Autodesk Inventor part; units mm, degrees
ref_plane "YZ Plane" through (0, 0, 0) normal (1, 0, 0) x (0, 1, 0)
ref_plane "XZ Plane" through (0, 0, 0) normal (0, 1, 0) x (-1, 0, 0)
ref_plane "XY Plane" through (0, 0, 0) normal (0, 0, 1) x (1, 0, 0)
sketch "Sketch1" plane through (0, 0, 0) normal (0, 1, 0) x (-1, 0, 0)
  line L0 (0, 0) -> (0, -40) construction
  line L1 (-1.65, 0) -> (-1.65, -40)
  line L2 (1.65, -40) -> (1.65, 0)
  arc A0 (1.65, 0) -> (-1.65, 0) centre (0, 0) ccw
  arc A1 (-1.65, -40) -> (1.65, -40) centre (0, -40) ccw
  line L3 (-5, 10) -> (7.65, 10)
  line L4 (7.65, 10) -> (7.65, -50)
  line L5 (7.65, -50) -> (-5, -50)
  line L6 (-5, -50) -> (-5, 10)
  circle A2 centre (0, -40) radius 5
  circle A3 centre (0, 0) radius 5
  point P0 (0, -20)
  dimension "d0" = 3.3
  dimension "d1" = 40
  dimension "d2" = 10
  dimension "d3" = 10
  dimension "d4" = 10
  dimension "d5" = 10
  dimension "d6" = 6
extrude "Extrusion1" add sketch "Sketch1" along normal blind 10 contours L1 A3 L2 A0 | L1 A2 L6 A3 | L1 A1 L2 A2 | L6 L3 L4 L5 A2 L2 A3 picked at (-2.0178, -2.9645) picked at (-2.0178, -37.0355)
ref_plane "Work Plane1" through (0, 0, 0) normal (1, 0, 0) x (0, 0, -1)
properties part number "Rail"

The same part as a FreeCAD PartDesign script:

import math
import FreeCAD as App
import Part
import Sketcher

V = App.Vector

doc = App.newDocument("Part")
body = doc.addObject("PartDesign::Body", "Body")

# Sketch on XZ plane
sketch1 = body.newObject("Sketcher::SketchObject", "Sketch")
sketch1.AttachmentSupport = (doc.getObject("XZ_Plane"), [""])
sketch1.MapMode = "FlatFace"
sketch1.addGeometry(Part.LineSegment(V(5, -50, 0), V(-7.65, -50, 0)), False)
sketch1.addGeometry(Part.LineSegment(V(-7.65, -50, 0), V(-7.65, 10, 0)), False)
sketch1.addGeometry(Part.LineSegment(V(-7.65, 10, 0), V(5, 10, 0)), False)
sketch1.addGeometry(Part.LineSegment(V(5, 10, 0), V(5, -50, 0)), False)
sketch1.addGeometry(Part.ArcOfCircle(Part.Circle(V(0, 0, 0), V(0, 0, 1), 1.65), math.radians(0), math.radians(180)), False)
sketch1.addGeometry(Part.LineSegment(V(-1.65, 0, 0), V(-1.65, -40, 0)), False)
sketch1.addGeometry(Part.ArcOfCircle(Part.Circle(V(0, -40, 0), V(0, 0, 1), 1.65), math.radians(180), math.radians(360)), False)
sketch1.addGeometry(Part.LineSegment(V(1.65, -40, 0), V(1.65, 0, 0)), False)
sketch1.addConstraint(Sketcher.Constraint("Coincident", 0, 2, 1, 1))
sketch1.addConstraint(Sketcher.Constraint("Coincident", 1, 2, 2, 1))
sketch1.addConstraint(Sketcher.Constraint("Coincident", 2, 2, 3, 1))
sketch1.addConstraint(Sketcher.Constraint("Coincident", 3, 2, 0, 1))
sketch1.addConstraint(Sketcher.Constraint("Tangent", 4, 2, 5, 1))
sketch1.addConstraint(Sketcher.Constraint("Tangent", 5, 2, 6, 1))
sketch1.addConstraint(Sketcher.Constraint("Tangent", 6, 2, 7, 1))
sketch1.addConstraint(Sketcher.Constraint("Tangent", 7, 2, 4, 1))
sketch1.addConstraint(Sketcher.Constraint("Horizontal", 0))
sketch1.addConstraint(Sketcher.Constraint("Vertical", 1))
sketch1.addConstraint(Sketcher.Constraint("Horizontal", 2))
sketch1.addConstraint(Sketcher.Constraint("Vertical", 3))
sketch1.addConstraint(Sketcher.Constraint("Vertical", 5))
sketch1.addConstraint(Sketcher.Constraint("Vertical", 7))
sketch1.addConstraint(Sketcher.Constraint("Coincident", 4, 3, -1, 1))
sketch1.addConstraint(Sketcher.Constraint("DistanceY", 5, 2, 5, 1, 40.0))
sketch1.addConstraint(Sketcher.Constraint("Radius", 4, 1.65))
sketch1.addConstraint(Sketcher.Constraint("DistanceY", -1, 1, 1, 2, 10.0))
sketch1.addConstraint(Sketcher.Constraint("DistanceY", 0, 2, 6, 3, 10.0))
sketch1.addConstraint(Sketcher.Constraint("DistanceX", 1, 2, 4, 2, 6.0))
sketch1.addConstraint(Sketcher.Constraint("DistanceX", -1, 1, 2, 2, 5.0))
pad1 = body.newObject("PartDesign::Pad", "Pad")
pad1.Profile = sketch1
pad1.Length = 10
pad1.Reversed = True

doc.recompute()
